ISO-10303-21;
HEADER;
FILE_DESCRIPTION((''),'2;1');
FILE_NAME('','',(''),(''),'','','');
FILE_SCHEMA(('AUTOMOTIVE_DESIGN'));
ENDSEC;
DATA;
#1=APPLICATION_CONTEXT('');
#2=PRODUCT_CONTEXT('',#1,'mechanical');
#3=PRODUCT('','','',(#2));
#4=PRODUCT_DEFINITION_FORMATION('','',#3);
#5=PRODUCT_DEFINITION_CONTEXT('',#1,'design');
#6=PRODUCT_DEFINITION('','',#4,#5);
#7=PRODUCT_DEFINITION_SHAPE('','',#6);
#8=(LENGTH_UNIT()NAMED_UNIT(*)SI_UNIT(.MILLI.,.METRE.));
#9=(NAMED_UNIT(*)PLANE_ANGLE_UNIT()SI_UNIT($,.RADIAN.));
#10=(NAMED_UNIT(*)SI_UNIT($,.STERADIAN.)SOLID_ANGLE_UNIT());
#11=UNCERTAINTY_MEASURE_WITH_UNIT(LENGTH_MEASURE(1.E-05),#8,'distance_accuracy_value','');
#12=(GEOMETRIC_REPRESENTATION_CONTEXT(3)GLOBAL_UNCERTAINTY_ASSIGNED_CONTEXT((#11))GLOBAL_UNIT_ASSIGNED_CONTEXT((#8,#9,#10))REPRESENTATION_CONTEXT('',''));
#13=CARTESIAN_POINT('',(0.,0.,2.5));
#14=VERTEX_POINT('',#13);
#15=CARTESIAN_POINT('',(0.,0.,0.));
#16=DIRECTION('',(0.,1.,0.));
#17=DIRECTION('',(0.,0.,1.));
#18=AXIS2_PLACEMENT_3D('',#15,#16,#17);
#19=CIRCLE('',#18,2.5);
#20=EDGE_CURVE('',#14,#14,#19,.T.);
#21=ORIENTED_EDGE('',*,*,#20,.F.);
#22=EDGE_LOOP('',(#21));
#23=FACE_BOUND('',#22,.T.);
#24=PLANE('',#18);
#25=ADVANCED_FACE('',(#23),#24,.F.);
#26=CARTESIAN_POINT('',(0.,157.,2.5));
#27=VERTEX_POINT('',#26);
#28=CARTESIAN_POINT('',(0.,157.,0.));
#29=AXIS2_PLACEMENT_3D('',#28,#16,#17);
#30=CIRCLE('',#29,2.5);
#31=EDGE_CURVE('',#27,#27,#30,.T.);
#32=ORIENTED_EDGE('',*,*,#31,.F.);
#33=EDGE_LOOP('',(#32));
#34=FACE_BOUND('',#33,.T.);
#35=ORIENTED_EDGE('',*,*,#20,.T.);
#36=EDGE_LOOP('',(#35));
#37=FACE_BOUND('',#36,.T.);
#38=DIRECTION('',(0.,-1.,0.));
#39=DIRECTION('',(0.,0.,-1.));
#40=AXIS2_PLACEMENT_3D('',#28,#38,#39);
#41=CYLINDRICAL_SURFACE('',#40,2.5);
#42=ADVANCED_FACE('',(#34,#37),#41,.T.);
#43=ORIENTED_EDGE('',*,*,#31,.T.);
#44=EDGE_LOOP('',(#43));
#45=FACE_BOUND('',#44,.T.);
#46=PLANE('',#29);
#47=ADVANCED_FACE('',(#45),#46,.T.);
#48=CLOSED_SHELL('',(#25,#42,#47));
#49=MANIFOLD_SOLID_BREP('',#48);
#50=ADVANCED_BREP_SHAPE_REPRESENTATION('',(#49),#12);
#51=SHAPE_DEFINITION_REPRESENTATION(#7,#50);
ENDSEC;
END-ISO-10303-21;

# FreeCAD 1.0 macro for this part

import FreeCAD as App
import Part
import Sketcher
from FreeCAD import Vector
Q = App.Units.Quantity

doc = App.newDocument("Part")
body = doc.addObject("PartDesign::Body", "Body")

# Sketch on XZ plane
sketch1 = body.newObject("Sketcher::SketchObject", "Sketch")
sketch1.AttachmentSupport = (doc.getObject("XZ_Plane"), [""])
sketch1.MapMode = "FlatFace"
sketch1.addGeometry(Part.Circle(Vector(0, 0, 0), Vector(0, 0, 1), 2.5), False)
sketch1.addConstraint(Sketcher.Constraint("Coincident", 0, 3, -1, 1))
sketch1.addConstraint(Sketcher.Constraint("Diameter", 0, Q("5 mm")))
pad1 = body.newObject("PartDesign::Pad", "Pad")
pad1.Profile = sketch1
pad1.Length = 157
pad1.Reversed = True

doc.recompute()
